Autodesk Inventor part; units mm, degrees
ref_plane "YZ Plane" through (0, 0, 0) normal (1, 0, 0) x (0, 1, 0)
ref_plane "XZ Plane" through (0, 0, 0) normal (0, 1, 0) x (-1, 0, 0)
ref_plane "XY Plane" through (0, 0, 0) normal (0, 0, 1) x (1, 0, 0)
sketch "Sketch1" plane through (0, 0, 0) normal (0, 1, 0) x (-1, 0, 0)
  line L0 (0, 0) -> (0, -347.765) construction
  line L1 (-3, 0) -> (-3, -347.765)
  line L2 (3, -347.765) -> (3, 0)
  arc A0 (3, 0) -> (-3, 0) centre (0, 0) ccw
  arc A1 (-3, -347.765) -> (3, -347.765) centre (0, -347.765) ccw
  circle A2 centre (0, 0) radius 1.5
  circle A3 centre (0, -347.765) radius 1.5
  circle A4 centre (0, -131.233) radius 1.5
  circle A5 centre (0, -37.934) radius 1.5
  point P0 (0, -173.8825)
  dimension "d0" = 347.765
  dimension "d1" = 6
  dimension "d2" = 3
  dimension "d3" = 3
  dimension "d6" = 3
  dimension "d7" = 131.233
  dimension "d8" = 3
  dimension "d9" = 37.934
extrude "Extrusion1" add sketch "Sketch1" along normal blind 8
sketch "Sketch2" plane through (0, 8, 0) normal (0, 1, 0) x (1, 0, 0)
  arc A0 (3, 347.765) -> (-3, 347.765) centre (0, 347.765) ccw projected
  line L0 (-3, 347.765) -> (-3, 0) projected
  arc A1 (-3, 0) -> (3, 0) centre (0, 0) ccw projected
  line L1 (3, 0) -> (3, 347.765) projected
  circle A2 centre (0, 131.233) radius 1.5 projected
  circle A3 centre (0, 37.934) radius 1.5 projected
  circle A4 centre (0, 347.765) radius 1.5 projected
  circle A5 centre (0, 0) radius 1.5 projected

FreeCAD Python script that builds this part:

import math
import FreeCAD as App
import Part
import Sketcher
from FreeCAD import Vector
Q = App.Units.Quantity

doc = App.newDocument("Part")
body = doc.addObject("PartDesign::Body", "Body")

sketch1 = body.newObject("Sketcher::SketchObject", "Sketch")
sketch1.AttachmentSupport = (doc.getObject("XZ_Plane"), [""])
sketch1.MapMode = "FlatFace"
sketch1.addGeometry(Part.ArcOfCircle(Part.Circle(Vector(0, 0, 0), Vector(0, 0, 1), 3), math.radians(0), math.radians(180)), False)
sketch1.addGeometry(Part.LineSegment(Vector(3, 0, 0), Vector(3, -347.8, 0)), False)
sketch1.addGeometry(Part.ArcOfCircle(Part.Circle(Vector(0, -347.8, 0), Vector(0, 0, 1), 3), math.radians(180), math.radians(360)), False)
sketch1.addGeometry(Part.LineSegment(Vector(-3, -347.8, 0), Vector(-3, 0, 0)), False)
sketch1.addGeometry(Part.Circle(Vector(0, -347.8, 0), Vector(0, 0, 1), 1.5), False)
sketch1.addGeometry(Part.Circle(Vector(0, -131.2, 0), Vector(0, 0, 1), 1.5), False)
sketch1.addGeometry(Part.Circle(Vector(0, -37.9, 0), Vector(0, 0, 1), 1.5), False)
sketch1.addGeometry(Part.Circle(Vector(0, 0, 0), Vector(0, 0, 1), 1.5), False)
sketch1.addConstraint(Sketcher.Constraint("Tangent", 0, 1, 1, 1))
sketch1.addConstraint(Sketcher.Constraint("Tangent", 1, 2, 2, 2))
sketch1.addConstraint(Sketcher.Constraint("Tangent", 2, 1, 3, 1))
sketch1.addConstraint(Sketcher.Constraint("Tangent", 3, 2, 0, 2))
sketch1.addConstraint(Sketcher.Constraint("Vertical", 1))
sketch1.addConstraint(Sketcher.Constraint("Vertical", 3))
sketch1.addConstraint(Sketcher.Constraint("Coincident", 0, 3, -1, 1))
sketch1.addConstraint(Sketcher.Constraint("Coincident", 7, 3, -1, 1))
sketch1.addConstraint(Sketcher.Constraint("Coincident", 4, 3, 2, 3))
sketch1.addConstraint(Sketcher.Constraint("Equal", 4, 5))
sketch1.addConstraint(Sketcher.Constraint("Equal", 5, 6))
sketch1.addConstraint(Sketcher.Constraint("Equal", 6, 7))
sketch1.addConstraint(Sketcher.Constraint("PointOnObject", 5, 3, -2))
sketch1.addConstraint(Sketcher.Constraint("PointOnObject", 6, 3, -2))
sketch1.addConstraint(Sketcher.Constraint("Diameter", 4, Q("3 mm")))
sketch1.addConstraint(Sketcher.Constraint("Radius", 0, Q("3 mm")))
sketch1.addConstraint(Sketcher.Constraint("DistanceY", 1, 2, 1, 1, Q("347.765 mm")))
sketch1.addConstraint(Sketcher.Constraint("DistanceY", 5, 3, -1, 1, Q("131.233 mm")))
sketch1.addConstraint(Sketcher.Constraint("DistanceY", 6, 3, -1, 1, Q("37.934 mm")))
pad1 = body.newObject("PartDesign::Pad", "Pad")
pad1.Profile = sketch1
pad1.Length = 8
pad1.Reversed = True

doc.recompute()
